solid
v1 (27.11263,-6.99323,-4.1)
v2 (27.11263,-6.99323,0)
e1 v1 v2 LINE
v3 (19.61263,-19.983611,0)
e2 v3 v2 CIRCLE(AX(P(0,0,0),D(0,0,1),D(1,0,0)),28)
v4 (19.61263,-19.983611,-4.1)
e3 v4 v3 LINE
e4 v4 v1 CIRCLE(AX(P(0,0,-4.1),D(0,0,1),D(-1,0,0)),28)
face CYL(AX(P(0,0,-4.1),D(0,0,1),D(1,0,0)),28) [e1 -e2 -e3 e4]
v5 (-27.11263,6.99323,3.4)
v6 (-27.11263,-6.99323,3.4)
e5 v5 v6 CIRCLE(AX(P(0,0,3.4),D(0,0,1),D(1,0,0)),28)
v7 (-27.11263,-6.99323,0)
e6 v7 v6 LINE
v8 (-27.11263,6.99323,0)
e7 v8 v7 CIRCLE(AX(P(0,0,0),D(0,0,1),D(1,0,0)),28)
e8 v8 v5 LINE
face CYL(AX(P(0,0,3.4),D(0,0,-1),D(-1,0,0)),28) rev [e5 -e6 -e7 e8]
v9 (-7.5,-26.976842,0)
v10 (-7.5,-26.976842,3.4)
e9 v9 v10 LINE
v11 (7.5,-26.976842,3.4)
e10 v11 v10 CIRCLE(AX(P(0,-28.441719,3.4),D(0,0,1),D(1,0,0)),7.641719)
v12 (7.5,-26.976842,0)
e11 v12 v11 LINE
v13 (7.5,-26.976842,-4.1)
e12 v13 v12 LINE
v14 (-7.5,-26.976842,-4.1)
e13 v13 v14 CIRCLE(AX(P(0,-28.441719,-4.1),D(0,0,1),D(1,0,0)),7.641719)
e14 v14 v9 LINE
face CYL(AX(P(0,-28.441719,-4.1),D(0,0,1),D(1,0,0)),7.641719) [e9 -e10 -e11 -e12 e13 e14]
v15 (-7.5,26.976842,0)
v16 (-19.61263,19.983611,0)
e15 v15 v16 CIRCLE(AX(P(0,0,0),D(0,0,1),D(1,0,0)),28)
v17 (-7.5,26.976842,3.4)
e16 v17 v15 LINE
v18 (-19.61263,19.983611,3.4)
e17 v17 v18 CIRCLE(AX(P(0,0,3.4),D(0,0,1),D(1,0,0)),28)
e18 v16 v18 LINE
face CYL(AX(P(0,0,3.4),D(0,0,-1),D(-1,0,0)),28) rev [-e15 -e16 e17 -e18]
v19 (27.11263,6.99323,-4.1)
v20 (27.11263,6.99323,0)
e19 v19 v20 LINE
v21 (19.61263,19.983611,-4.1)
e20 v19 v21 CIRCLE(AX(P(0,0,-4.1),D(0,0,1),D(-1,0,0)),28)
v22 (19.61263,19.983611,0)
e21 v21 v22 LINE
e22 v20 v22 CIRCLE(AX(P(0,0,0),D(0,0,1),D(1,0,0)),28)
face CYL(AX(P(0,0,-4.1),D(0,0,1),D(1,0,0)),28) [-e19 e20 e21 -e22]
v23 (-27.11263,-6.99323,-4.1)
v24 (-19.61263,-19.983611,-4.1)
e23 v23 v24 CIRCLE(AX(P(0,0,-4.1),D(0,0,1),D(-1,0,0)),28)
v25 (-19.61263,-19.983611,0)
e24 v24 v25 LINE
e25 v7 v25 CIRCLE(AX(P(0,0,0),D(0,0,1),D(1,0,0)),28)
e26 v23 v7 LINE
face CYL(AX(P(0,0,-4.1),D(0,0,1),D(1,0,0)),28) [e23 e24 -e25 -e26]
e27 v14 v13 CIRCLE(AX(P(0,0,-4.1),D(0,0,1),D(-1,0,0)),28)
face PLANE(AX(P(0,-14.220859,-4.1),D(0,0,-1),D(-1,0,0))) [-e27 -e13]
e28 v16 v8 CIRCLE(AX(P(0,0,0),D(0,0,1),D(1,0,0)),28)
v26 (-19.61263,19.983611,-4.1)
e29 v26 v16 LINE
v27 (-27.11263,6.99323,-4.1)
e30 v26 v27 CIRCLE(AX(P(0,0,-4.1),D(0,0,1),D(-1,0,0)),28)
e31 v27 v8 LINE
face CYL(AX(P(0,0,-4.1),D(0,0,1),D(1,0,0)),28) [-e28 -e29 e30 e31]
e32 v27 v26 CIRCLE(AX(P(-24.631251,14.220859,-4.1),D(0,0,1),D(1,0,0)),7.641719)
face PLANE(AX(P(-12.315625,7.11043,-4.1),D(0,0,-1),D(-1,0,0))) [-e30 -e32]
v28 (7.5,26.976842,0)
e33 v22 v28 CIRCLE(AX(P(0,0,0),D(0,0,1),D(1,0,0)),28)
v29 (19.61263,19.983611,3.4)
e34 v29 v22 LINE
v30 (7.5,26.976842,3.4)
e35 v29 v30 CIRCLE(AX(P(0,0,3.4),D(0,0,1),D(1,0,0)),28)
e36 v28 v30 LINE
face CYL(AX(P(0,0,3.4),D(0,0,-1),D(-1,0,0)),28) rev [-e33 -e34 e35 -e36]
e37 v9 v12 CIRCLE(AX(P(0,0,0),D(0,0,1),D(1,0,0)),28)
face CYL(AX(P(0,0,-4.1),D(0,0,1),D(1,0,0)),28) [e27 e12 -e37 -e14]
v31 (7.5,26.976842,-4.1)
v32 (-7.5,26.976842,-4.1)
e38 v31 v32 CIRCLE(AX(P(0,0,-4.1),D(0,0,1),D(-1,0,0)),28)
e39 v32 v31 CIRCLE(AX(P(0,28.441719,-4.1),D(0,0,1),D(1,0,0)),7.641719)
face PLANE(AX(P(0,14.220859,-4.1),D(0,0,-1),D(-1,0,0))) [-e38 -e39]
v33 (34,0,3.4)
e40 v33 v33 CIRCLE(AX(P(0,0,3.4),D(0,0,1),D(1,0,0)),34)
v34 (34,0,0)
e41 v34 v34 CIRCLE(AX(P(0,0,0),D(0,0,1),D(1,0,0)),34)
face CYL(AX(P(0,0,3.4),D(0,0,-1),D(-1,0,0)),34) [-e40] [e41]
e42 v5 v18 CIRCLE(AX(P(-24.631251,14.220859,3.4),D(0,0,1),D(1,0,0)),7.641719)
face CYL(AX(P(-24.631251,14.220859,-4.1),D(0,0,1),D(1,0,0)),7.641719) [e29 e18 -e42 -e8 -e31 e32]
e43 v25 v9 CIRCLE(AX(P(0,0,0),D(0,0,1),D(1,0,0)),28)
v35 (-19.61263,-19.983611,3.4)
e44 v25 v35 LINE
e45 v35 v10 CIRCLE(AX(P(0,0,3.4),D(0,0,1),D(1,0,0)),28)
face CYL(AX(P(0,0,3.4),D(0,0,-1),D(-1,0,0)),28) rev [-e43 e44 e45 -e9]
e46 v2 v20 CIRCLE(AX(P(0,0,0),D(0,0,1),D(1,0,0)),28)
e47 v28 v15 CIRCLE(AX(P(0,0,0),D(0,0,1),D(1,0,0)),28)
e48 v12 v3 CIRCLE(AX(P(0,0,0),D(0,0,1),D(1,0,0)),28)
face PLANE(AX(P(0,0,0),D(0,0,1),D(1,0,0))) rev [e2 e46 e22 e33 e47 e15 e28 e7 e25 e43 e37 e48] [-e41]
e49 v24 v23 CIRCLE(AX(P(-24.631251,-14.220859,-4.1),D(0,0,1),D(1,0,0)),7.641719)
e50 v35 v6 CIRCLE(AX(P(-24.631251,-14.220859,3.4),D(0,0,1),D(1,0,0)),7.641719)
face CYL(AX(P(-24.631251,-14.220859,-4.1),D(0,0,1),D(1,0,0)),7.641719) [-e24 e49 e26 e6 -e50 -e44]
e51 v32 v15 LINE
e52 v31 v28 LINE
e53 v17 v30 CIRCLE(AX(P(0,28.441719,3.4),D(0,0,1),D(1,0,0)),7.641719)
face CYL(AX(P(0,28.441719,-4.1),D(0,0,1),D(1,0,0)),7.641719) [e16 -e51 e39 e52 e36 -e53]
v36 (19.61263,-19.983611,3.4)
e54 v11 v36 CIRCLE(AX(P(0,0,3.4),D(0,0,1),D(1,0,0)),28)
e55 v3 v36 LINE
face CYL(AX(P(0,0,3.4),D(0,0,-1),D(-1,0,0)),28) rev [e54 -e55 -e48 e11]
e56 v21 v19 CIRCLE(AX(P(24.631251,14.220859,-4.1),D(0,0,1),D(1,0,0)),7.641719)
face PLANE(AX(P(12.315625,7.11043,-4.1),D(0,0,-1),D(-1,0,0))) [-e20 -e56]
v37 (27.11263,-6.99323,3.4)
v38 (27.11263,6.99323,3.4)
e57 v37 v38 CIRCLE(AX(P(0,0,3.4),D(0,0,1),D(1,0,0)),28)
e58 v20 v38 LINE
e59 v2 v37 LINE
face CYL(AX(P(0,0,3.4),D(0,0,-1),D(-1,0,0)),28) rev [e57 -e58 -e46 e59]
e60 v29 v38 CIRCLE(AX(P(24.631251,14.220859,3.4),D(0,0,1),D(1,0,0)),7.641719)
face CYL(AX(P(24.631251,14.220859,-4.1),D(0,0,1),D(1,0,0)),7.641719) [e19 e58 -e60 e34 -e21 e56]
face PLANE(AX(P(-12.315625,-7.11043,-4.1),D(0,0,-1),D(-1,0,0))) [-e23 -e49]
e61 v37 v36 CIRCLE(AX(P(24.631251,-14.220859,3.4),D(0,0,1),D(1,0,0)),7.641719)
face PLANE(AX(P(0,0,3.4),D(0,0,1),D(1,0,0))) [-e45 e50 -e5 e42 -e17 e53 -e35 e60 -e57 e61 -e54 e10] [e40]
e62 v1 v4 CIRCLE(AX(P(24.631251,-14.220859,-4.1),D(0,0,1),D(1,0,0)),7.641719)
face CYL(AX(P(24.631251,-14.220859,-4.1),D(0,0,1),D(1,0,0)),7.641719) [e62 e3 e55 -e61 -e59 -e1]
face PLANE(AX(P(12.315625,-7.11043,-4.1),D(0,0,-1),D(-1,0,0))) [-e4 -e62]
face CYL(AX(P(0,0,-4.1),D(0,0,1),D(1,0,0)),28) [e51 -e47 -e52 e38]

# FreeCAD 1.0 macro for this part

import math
import FreeCAD as App
import Part
import Sketcher

V = App.Vector

doc = App.newDocument("Part")
params = doc.addObject("Spreadsheet::Sheet", "Params")
for row, (alias, value) in enumerate([
    ("sketch1_diameter", "68 mm"),
    ("sketch1_diameter2", "56 mm"),
    ("pad1_length", "3.4 mm"),
    ("sketch2_radius", "28 mm"),
    ("pad2_length", "7.5 mm"),
], start=1):
    params.set(f"A{row}", alias)
    params.set(f"B{row}", "=" + value)
    params.setAlias(f"B{row}", alias)

body = doc.addObject("PartDesign::Body", "Body")

# Sketch on XY plane
sketch1 = doc.addObject("Sketcher::SketchObject", "Sketch")
body.addObject(sketch1)
sketch1.AttachmentSupport = (doc.XY_Plane, [""])
sketch1.MapMode = "FlatFace"
sketch1.addGeometry([
    Part.Circle(V(0, 0, 0), V(0, 0, 1), 34),
    Part.Circle(V(0, 0, 0), V(0, 0, 1), 28),
], False)
sketch1.addConstraint([
    Sketcher.Constraint("Coincident", 0, 3, -1, 1),
    Sketcher.Constraint("Coincident", 1, 3, -1, 1),
    Sketcher.Constraint("Diameter", 0, 68.0),
    Sketcher.Constraint("Diameter", 1, 56.0),
])
sketch1.setExpression("Constraints[2]", "Params.sketch1_diameter")
sketch1.setExpression("Constraints[3]", "Params.sketch1_diameter2")
pad1 = doc.addObject("PartDesign::Pad", "Pad")
body.addObject(pad1)
pad1.Profile = sketch1
pad1.setExpression("Length", "Params.pad1_length")

# Sketch on XY plane
sketch2 = doc.addObject("Sketcher::SketchObject", "Sketch001")
body.addObject(sketch2)
sketch2.AttachmentSupport = (doc.XY_Plane, [""])
sketch2.MapMode = "FlatFace"
sketch2.AttachmentOffset = App.Placement(V(0, 0, -4.1), App.Rotation())
sketch2.addGeometry([
    Part.ArcOfCircle(Part.Circle(V(0, 28, 0), V(0, 0, 1), 8), math.radians(-169), math.radians(-11)),  # 0
    Part.ArcOfCircle(Part.Circle(V(0, 0, 0), V(0, 0, 1), 28), math.radians(74), math.radians(106)),  # 1
    Part.ArcOfCircle(Part.Circle(V(25, 14, 0), V(0, 0, 1), 8), math.radians(131), math.radians(289)),  # 2
    Part.ArcOfCircle(Part.Circle(V(0, 0, 0), V(0, 0, 1), 28), math.radians(14), math.radians(46)),  # 3
    Part.ArcOfCircle(Part.Circle(V(25, -14, 0), V(0, 0, 1), 8), math.radians(71), math.radians(229)),  # 4
    Part.ArcOfCircle(Part.Circle(V(0, 0, 0), V(0, 0, 1), 28), math.radians(-46), math.radians(-14)),  # 5
    Part.ArcOfCircle(Part.Circle(V(0, -28, 0), V(0, 0, 1), 8), math.radians(11), math.radians(169)),  # 6
    Part.ArcOfCircle(Part.Circle(V(0, 0, 0), V(0, 0, 1), 28), math.radians(-106), math.radians(-74)),  # 7
    Part.ArcOfCircle(Part.Circle(V(-25, -14, 0), V(0, 0, 1), 8), math.radians(-49), math.radians(109)),  # 8
    Part.ArcOfCircle(Part.Circle(V(0, 0, 0), V(0, 0, 1), 28), math.radians(-166), math.radians(-134)),  # 9
    Part.ArcOfCircle(Part.Circle(V(-25, 14, 0), V(0, 0, 1), 8), math.radians(-109), math.radians(49)),  # 10
    Part.ArcOfCircle(Part.Circle(V(0, 0, 0), V(0, 0, 1), 28), math.radians(134), math.radians(166)),  # 11
], False)
sketch2.addConstraint([
    Sketcher.Constraint("Coincident", 0, 1, 1, 2),
    Sketcher.Constraint("Coincident", 1, 1, 0, 2),
    Sketcher.Constraint("Coincident", 2, 1, 3, 2),
    Sketcher.Constraint("Coincident", 3, 1, 2, 2),
    Sketcher.Constraint("Coincident", 4, 1, 5, 2),
    Sketcher.Constraint("Coincident", 5, 1, 4, 2),
    Sketcher.Constraint("Coincident", 6, 1, 7, 2),
    Sketcher.Constraint("Coincident", 7, 1, 6, 2),
    Sketcher.Constraint("Coincident", 8, 1, 9, 2),
    Sketcher.Constraint("Coincident", 9, 1, 8, 2),
    Sketcher.Constraint("Coincident", 10, 1, 11, 2),
    Sketcher.Constraint("Coincident", 11, 1, 10, 2),
    Sketcher.Constraint("Coincident", 1, 3, -1, 1),
    Sketcher.Constraint("Coincident", 3, 3, -1, 1),
    Sketcher.Constraint("Coincident", 5, 3, -1, 1),
    Sketcher.Constraint("Coincident", 7, 3, -1, 1),
    Sketcher.Constraint("Coincident", 9, 3, -1, 1),
    Sketcher.Constraint("Coincident", 11, 3, -1, 1),
    Sketcher.Constraint("Equal", 0, 2),
    Sketcher.Constraint("Equal", 1, 3),
    Sketcher.Constraint("Equal", 2, 4),
    Sketcher.Constraint("Equal", 3, 5),
    Sketcher.Constraint("Equal", 4, 6),
    Sketcher.Constraint("Equal", 5, 7),
    Sketcher.Constraint("Equal", 6, 8),
    Sketcher.Constraint("Equal", 7, 9),
    Sketcher.Constraint("Equal", 8, 10),
    Sketcher.Constraint("Equal", 9, 11),
    Sketcher.Constraint("Symmetric", 0, 3, 6, 3, -1, 1),
    Sketcher.Constraint("Symmetric", 2, 3, 8, 3, -1, 1),
    Sketcher.Constraint("Symmetric", 4, 3, 10, 3, -1, 1),
    Sketcher.Constraint("Symmetric", 4, 3, 8, 3, -2),
    Sketcher.Constraint("PointOnObject", 0, 3, -2),
    Sketcher.Constraint("Radius", 1, 28.0),
    Sketcher.Constraint("DistanceX", 0, 1, 1, 1, 15.0),
    Sketcher.Constraint("DistanceX", 2, 1, 3, 1, 7.5),
    Sketcher.Constraint("Radius", 0, 7.641719),
    Sketcher.Constraint("DistanceX", -1, 1, 2, 3, 24.631251),
])
sketch2.setExpression("Constraints[33]", "Params.sketch2_radius")
pad2 = doc.addObject("PartDesign::Pad", "Pad001")
body.addObject(pad2)
pad2.Profile = sketch2
pad2.setExpression("Length", "Params.pad2_length")

doc.recompute()
